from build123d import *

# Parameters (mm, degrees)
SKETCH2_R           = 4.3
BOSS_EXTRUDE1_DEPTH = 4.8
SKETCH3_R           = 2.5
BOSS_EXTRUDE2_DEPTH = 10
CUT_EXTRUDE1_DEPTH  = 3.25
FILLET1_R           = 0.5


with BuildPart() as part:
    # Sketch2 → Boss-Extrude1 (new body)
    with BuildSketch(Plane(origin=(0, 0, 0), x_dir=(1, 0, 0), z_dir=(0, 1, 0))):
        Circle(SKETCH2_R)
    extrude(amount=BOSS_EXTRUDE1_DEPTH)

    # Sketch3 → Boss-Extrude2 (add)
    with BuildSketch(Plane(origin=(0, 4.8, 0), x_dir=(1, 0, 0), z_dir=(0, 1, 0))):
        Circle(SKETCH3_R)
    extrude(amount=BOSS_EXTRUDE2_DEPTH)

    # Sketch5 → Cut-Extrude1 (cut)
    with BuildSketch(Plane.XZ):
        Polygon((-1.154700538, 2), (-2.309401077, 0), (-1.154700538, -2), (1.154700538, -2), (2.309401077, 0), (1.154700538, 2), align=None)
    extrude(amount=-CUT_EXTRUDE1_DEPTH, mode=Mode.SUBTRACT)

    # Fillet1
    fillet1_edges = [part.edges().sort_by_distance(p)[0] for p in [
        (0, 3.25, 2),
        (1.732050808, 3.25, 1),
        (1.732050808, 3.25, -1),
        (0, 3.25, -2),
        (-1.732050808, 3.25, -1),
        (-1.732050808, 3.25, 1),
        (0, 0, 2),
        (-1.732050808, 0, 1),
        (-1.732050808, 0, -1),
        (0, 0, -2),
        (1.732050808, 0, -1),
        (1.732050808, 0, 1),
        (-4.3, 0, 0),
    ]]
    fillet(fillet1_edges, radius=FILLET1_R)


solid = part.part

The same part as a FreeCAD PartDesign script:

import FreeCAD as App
import Part
import Sketcher
Q = App.Units.Quantity


def edges_at(feature, points):
    """Names of the edges that pass closest to the given points."""
    edges = feature.Shape.Edges
    near = lambda p: min(range(len(edges)), key=lambda i: edges[i].distToShape(Part.Vertex(*p))[0])
    return sorted({f"Edge{near(p) + 1}" for p in points})

doc = App.newDocument("Part")
params = doc.addObject("Spreadsheet::Sheet", "Params")
for row, (alias, value) in enumerate([
    ("sketch1_diameter", "8.6 mm"),
    ("pad1_length", "4.8 mm"),
    ("sketch2_diameter", "5 mm"),
    ("pad2_length", "10 mm"),
    ("pocket1_length", "3.25 mm"),
    ("fillet_radius", "0.5 mm"),
], start=1):
    params.set(f"A{row}", alias)
    params.set(f"B{row}", "=" + value)
    params.setAlias(f"B{row}", alias)

body = doc.addObject("PartDesign::Body", "Body")

# Sketch on XZ plane
sketch1 = body.newObject("Sketcher::SketchObject", "Sketch")
sketch1.AttachmentSupport = (doc.getObject("XZ_Plane"), [""])
sketch1.MapMode = "FlatFace"
sketch1.addGeometry(Part.Circle(App.Vector(0, 0, 0), App.Vector(0, 0, 1), 4.3), False)
sketch1.addConstraint([
    Sketcher.Constraint("Coincident", 0, 3, -1, 1),
    Sketcher.Constraint("Diameter", 0, 8.6),
])
sketch1.setExpression("Constraints[1]", "Params.sketch1_diameter")
pad1 = body.newObject("PartDesign::Pad", "Pad")
pad1.Profile = sketch1
pad1.setExpression("Length", "Params.pad1_length")
pad1.Reversed = True

# Sketch on XZ plane
sketch2 = body.newObject("Sketcher::SketchObject", "Sketch001")
sketch2.AttachmentSupport = (doc.getObject("XZ_Plane"), [""])
sketch2.MapMode = "FlatFace"
sketch2.AttachmentOffset = App.Placement(App.Vector(0, 0, -4.8), App.Rotation())
sketch2.addGeometry(Part.Circle(App.Vector(0, 0, 0), App.Vector(0, 0, 1), 2.5), False)
sketch2.addConstraint([
    Sketcher.Constraint("Coincident", 0, 3, -1, 1),
    Sketcher.Constraint("Diameter", 0, 5.0),
])
sketch2.setExpression("Constraints[1]", "Params.sketch2_diameter")
pad2 = body.newObject("PartDesign::Pad", "Pad001")
pad2.Profile = sketch2
pad2.setExpression("Length", "Params.pad2_length")
pad2.Reversed = True

# Sketch on XZ plane
sketch3 = body.newObject("Sketcher::SketchObject", "Sketch002")
sketch3.AttachmentSupport = (doc.getObject("XZ_Plane"), [""])
sketch3.MapMode = "FlatFace"
sketch3.addGeometry([
    Part.LineSegment(App.Vector(-1.154701, 2, 0), App.Vector(-2.309401, 0, 0)),  # 0
    Part.LineSegment(App.Vector(-2.309401, 0, 0), App.Vector(-1.154701, -2, 0)),  # 1
    Part.LineSegment(App.Vector(-1.154701, -2, 0), App.Vector(1.154701, -2, 0)),  # 2
    Part.LineSegment(App.Vector(1.154701, -2, 0), App.Vector(2.309401, 0, 0)),  # 3
    Part.LineSegment(App.Vector(2.309401, 0, 0), App.Vector(1.154701, 2, 0)),  # 4
    Part.LineSegment(App.Vector(1.154701, 2, 0), App.Vector(-1.154701, 2, 0)),  # 5
], False)
sketch3.addConstraint([
    Sketcher.Constraint("Coincident", 0, 2, 1, 1),
    Sketcher.Constraint("Coincident", 1, 2, 2, 1),
    Sketcher.Constraint("Coincident", 2, 2, 3, 1),
    Sketcher.Constraint("Coincident", 3, 2, 4, 1),
    Sketcher.Constraint("Coincident", 4, 2, 5, 1),
    Sketcher.Constraint("Coincident", 5, 2, 0, 1),
    Sketcher.Constraint("Horizontal", 2),
    Sketcher.Constraint("Horizontal", 5),
    Sketcher.Constraint("Symmetric", 0, 2, 3, 2, -1, 1),
    Sketcher.Constraint("Symmetric", 1, 2, 4, 2, -1, 1),
    Sketcher.Constraint("PointOnObject", 0, 2, -1),
    Sketcher.Constraint("Parallel", 0, 3),
    Sketcher.Constraint("Vertical", 2, 2, 4, 2),
    Sketcher.Constraint("Angle", 0, Q("-120 deg")),
    Sketcher.Constraint("DistanceY", 1, 2, -1, 1, 2.0),
    Sketcher.Constraint("DistanceX", 2, 1, 2, 2, 2.309401),
])
pocket1 = body.newObject("PartDesign::Pocket", "Pocket")
pocket1.Profile = sketch3
pocket1.setExpression("Length", "Params.pocket1_length")
doc.recompute()

fillet = body.newObject("PartDesign::Fillet", "Fillet")
fillet.Base = (pocket1, edges_at(pocket1, [
    (0, 3.25, 2),
    (1.732, 3.25, 1),
    (1.732, 3.25, -1),
    (0, 3.25, -2),
    (-1.732, 3.25, -1),
    (-1.732, 3.25, 1),
    (0, 0, 2),
    (-1.732, 0, 1),
    (-1.732, 0, -1),
    (0, 0, -2),
    (1.732, 0, -1),
    (1.732, 0, 1),
    (-4.3, 0, 0),
]))
fillet.setExpression("Radius", "Params.fillet_radius")

doc.recompute()
